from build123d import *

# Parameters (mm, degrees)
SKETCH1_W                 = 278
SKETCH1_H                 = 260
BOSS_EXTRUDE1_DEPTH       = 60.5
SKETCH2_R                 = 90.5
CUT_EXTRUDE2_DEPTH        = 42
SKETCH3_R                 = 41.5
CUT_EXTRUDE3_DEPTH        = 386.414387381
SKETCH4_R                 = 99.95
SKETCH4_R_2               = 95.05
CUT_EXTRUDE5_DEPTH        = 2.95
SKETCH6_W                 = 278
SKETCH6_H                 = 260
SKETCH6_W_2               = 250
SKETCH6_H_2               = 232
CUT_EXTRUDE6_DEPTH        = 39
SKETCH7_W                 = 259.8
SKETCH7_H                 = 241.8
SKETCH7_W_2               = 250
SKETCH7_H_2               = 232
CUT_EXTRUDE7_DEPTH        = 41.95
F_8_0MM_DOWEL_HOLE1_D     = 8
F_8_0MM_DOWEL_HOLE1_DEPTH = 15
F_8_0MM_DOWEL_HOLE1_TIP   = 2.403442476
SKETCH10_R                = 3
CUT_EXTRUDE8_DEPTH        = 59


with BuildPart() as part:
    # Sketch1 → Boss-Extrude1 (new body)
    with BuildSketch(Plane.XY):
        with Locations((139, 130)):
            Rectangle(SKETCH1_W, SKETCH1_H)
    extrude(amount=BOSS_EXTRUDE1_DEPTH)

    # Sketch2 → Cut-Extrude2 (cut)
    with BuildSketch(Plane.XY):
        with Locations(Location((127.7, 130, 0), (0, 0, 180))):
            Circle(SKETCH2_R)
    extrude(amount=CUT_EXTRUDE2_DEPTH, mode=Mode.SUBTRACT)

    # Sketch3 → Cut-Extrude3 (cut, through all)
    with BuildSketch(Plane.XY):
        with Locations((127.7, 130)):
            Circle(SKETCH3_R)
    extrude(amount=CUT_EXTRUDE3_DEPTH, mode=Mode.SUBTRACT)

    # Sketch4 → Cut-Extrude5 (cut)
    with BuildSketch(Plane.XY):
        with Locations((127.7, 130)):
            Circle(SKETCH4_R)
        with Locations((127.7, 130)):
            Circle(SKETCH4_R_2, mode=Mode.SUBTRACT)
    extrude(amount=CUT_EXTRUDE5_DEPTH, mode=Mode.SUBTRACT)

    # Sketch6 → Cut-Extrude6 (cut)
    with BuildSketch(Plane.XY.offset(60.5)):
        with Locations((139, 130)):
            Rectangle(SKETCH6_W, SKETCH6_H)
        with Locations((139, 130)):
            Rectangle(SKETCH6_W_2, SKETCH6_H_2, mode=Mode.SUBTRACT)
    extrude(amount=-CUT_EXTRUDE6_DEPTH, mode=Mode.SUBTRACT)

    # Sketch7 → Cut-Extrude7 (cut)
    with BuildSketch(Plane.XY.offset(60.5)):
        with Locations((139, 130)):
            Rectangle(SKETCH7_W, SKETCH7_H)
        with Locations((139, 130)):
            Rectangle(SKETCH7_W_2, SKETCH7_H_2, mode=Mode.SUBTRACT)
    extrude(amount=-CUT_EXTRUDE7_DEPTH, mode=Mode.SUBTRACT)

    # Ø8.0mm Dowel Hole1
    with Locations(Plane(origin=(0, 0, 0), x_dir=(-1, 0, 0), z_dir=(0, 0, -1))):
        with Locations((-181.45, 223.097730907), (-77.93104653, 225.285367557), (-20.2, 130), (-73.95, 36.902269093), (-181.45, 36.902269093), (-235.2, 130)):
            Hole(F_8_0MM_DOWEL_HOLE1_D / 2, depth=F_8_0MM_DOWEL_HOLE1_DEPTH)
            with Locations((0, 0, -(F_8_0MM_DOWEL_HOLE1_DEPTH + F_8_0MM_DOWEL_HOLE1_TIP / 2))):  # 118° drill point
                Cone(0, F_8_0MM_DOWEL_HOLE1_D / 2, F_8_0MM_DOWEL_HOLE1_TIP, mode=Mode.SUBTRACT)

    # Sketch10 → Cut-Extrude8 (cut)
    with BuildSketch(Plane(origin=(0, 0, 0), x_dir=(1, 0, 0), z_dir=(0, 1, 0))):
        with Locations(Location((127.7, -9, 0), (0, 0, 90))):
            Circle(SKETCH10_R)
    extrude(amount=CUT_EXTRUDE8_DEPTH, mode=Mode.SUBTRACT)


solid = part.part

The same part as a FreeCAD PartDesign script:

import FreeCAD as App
import Part
import Sketcher
Q = App.Units.Quantity

doc = App.newDocument("Part")
params = doc.addObject("Spreadsheet::Sheet", "Params")
for row, (alias, value) in enumerate([
    ("sketch1_width", "278 mm"),
    ("sketch1_height", "260 mm"),
    ("pad1_length", "60.5 mm"),
    ("sketch2_diameter", "181 mm"),
    ("pocket1_length", "42 mm"),
    ("sketch3_diameter", "83 mm"),
    ("sketch4_diameter", "199.9 mm"),
    ("sketch4_diameter2", "190.1 mm"),
    ("pocket3_length", "2.95 mm"),
    ("sketch5_width", "278 mm"),
    ("sketch5_width2", "250 mm"),
    ("sketch5_height", "260 mm"),
    ("sketch5_height2", "232 mm"),
    ("pocket4_length", "39 mm"),
    ("sketch6_width", "250 mm"),
    ("sketch6_height", "232 mm"),
    ("sketch6_width2", "259.8 mm"),
    ("sketch6_height2", "241.8 mm"),
    ("pocket5_length", "41.95 mm"),
    ("sketch7_diameter", "8 mm"),
    ("hole_diameter", "8 mm"),
    ("hole_depth", "15 mm"),
    ("sketch8_diameter", "6 mm"),
    ("pocket6_length", "59 mm"),
], start=1):
    params.set(f"A{row}", alias)
    params.set(f"B{row}", "=" + value)
    params.setAlias(f"B{row}", alias)

body = doc.addObject("PartDesign::Body", "Body")

# Sketch on XY plane
sketch1 = body.newObject("Sketcher::SketchObject", "Sketch")
sketch1.AttachmentSupport = (doc.getObject("XY_Plane"), [""])
sketch1.MapMode = "FlatFace"
sketch1.addGeometry([
    Part.LineSegment(App.Vector(0, 260, 0), App.Vector(0, 0, 0)),
    Part.LineSegment(App.Vector(0, 0, 0), App.Vector(278, 0, 0)),
    Part.LineSegment(App.Vector(278, 0, 0), App.Vector(278, 260, 0)),
    Part.LineSegment(App.Vector(278, 260, 0), App.Vector(0, 260, 0)),
], False)
sketch1.addConstraint([
    Sketcher.Constraint("Coincident", 0, 2, 1, 1),
    Sketcher.Constraint("Coincident", 1, 2, 2, 1),
    Sketcher.Constraint("Coincident", 2, 2, 3, 1),
    Sketcher.Constraint("Coincident", 3, 2, 0, 1),
    Sketcher.Constraint("Vertical", 0),
    Sketcher.Constraint("Horizontal", 1),
    Sketcher.Constraint("Vertical", 2),
    Sketcher.Constraint("Horizontal", 3),
    Sketcher.Constraint("Coincident", 0, 2, -1, 1),
    Sketcher.Constraint("DistanceX", 1, 1, 1, 2, Q("278 mm")),
    Sketcher.Constraint("DistanceY", 0, 2, 0, 1, Q("260 mm")),
])
sketch1.setExpression("Constraints[9]", "Params.sketch1_width")
sketch1.setExpression("Constraints[10]", "Params.sketch1_height")
pad1 = body.newObject("PartDesign::Pad", "Pad")
pad1.Profile = sketch1
pad1.setExpression("Length", "Params.pad1_length")

# Sketch on XY plane
sketch2 = body.newObject("Sketcher::SketchObject", "Sketch001")
sketch2.AttachmentSupport = (doc.getObject("XY_Plane"), [""])
sketch2.MapMode = "FlatFace"
sketch2.addGeometry(Part.Circle(App.Vector(128, 130, 0), App.Vector(0, 0, 1), 90), False)
sketch2.addConstraint([
    Sketcher.Constraint("Diameter", 0, Q("181 mm")),
    Sketcher.Constraint("DistanceY", -1, 1, 0, 3, Q("130 mm")),
    Sketcher.Constraint("DistanceX", -1, 1, 0, 3, Q("127.7 mm")),
])
sketch2.setExpression("Constraints[0]", "Params.sketch2_diameter")
pocket1 = body.newObject("PartDesign::Pocket", "Pocket")
pocket1.Profile = sketch2
pocket1.setExpression("Length", "Params.pocket1_length")
pocket1.Reversed = True

# Sketch on XY plane
sketch3 = body.newObject("Sketcher::SketchObject", "Sketch002")
sketch3.AttachmentSupport = (doc.getObject("XY_Plane"), [""])
sketch3.MapMode = "FlatFace"
sketch3.addGeometry(Part.Circle(App.Vector(128, 130, 0), App.Vector(0, 0, 1), 42), False)
sketch3.addConstraint([
    Sketcher.Constraint("Diameter", 0, Q("83 mm")),
    Sketcher.Constraint("DistanceY", -1, 1, 0, 3, Q("130 mm")),
    Sketcher.Constraint("DistanceX", -1, 1, 0, 3, Q("127.7 mm")),
])
sketch3.setExpression("Constraints[0]", "Params.sketch3_diameter")
pocket2 = body.newObject("PartDesign::Pocket", "Pocket001")
pocket2.Profile = sketch3
pocket2.Type = "ThroughAll"
pocket2.Reversed = True

# Sketch on XY plane
sketch4 = body.newObject("Sketcher::SketchObject", "Sketch003")
sketch4.AttachmentSupport = (doc.getObject("XY_Plane"), [""])
sketch4.MapMode = "FlatFace"
sketch4.addGeometry([
    Part.Circle(App.Vector(128, 130, 0), App.Vector(0, 0, 1), 100),
    Part.Circle(App.Vector(128, 130, 0), App.Vector(0, 0, 1), 95),
], False)
sketch4.addConstraint([
    Sketcher.Constraint("Coincident", 1, 3, 0, 3),
    Sketcher.Constraint("Diameter", 0, Q("199.9 mm")),
    Sketcher.Constraint("Diameter", 1, Q("190.1 mm")),
    Sketcher.Constraint("DistanceY", -1, 1, 0, 3, Q("130 mm")),
    Sketcher.Constraint("DistanceX", -1, 1, 0, 3, Q("127.7 mm")),
])
sketch4.setExpression("Constraints[1]", "Params.sketch4_diameter")
sketch4.setExpression("Constraints[2]", "Params.sketch4_diameter2")
pocket3 = body.newObject("PartDesign::Pocket", "Pocket002")
pocket3.Profile = sketch4
pocket3.setExpression("Length", "Params.pocket3_length")
pocket3.Reversed = True

# Sketch on XY plane
sketch5 = body.newObject("Sketcher::SketchObject", "Sketch004")
sketch5.AttachmentSupport = (doc.getObject("XY_Plane"), [""])
sketch5.MapMode = "FlatFace"
sketch5.AttachmentOffset = App.Placement(App.Vector(0, 0, 60.5), App.Rotation())
sketch5.addGeometry([
    Part.LineSegment(App.Vector(0, 260, 0), App.Vector(0, 0, 0)),  # 0
    Part.LineSegment(App.Vector(0, 0, 0), App.Vector(278, 0, 0)),  # 1
    Part.LineSegment(App.Vector(278, 0, 0), App.Vector(278, 260, 0)),  # 2
    Part.LineSegment(App.Vector(278, 260, 0), App.Vector(0, 260, 0)),  # 3
    Part.LineSegment(App.Vector(264, 14, 0), App.Vector(14, 14, 0)),  # 4
    Part.LineSegment(App.Vector(14, 14, 0), App.Vector(14, 246, 0)),  # 5
    Part.LineSegment(App.Vector(14, 246, 0), App.Vector(264, 246, 0)),  # 6
    Part.LineSegment(App.Vector(264, 246, 0), App.Vector(264, 14, 0)),  # 7
], False)
sketch5.addConstraint([
    Sketcher.Constraint("Coincident", 0, 2, 1, 1),
    Sketcher.Constraint("Coincident", 1, 2, 2, 1),
    Sketcher.Constraint("Coincident", 2, 2, 3, 1),
    Sketcher.Constraint("Coincident", 3, 2, 0, 1),
    Sketcher.Constraint("Coincident", 4, 2, 5, 1),
    Sketcher.Constraint("Coincident", 5, 2, 6, 1),
    Sketcher.Constraint("Coincident", 6, 2, 7, 1),
    Sketcher.Constraint("Coincident", 7, 2, 4, 1),
    Sketcher.Constraint("Vertical", 0),
    Sketcher.Constraint("Horizontal", 1),
    Sketcher.Constraint("Vertical", 2),
    Sketcher.Constraint("Horizontal", 3),
    Sketcher.Constraint("Horizontal", 4),
    Sketcher.Constraint("Vertical", 5),
    Sketcher.Constraint("Horizontal", 6),
    Sketcher.Constraint("Vertical", 7),
    Sketcher.Constraint("Coincident", 0, 2, -1, 1),
    Sketcher.Constraint("DistanceX", 1, 1, 1, 2, Q("278 mm")),
    Sketcher.Constraint("DistanceX", 4, 2, 4, 1, Q("250 mm")),
    Sketcher.Constraint("DistanceY", 0, 2, 0, 1, Q("260 mm")),
    Sketcher.Constraint("DistanceY", 5, 1, 5, 2, Q("232 mm")),
    Sketcher.Constraint("DistanceX", -1, 1, 4, 2, Q("14 mm")),
    Sketcher.Constraint("DistanceY", -1, 1, 4, 2, Q("14 mm")),
])
sketch5.setExpression("Constraints[17]", "Params.sketch5_width")
sketch5.setExpression("Constraints[18]", "Params.sketch5_width2")
sketch5.setExpression("Constraints[19]", "Params.sketch5_height")
sketch5.setExpression("Constraints[20]", "Params.sketch5_height2")
pocket4 = body.newObject("PartDesign::Pocket", "Pocket003")
pocket4.Profile = sketch5
pocket4.setExpression("Length", "Params.pocket4_length")

# Sketch on XY plane
sketch6 = body.newObject("Sketcher::SketchObject", "Sketch005")
sketch6.AttachmentSupport = (doc.getObject("XY_Plane"), [""])
sketch6.MapMode = "FlatFace"
sketch6.AttachmentOffset = App.Placement(App.Vector(0, 0, 60.5), App.Rotation())
sketch6.addGeometry([
    Part.LineSegment(App.Vector(9, 251, 0), App.Vector(9, 9, 0)),  # 0
    Part.LineSegment(App.Vector(9, 9, 0), App.Vector(269, 9, 0)),  # 1
    Part.LineSegment(App.Vector(269, 9, 0), App.Vector(269, 251, 0)),  # 2
    Part.LineSegment(App.Vector(269, 251, 0), App.Vector(9, 251, 0)),  # 3
    Part.LineSegment(App.Vector(264, 14, 0), App.Vector(14, 14, 0)),  # 4
    Part.LineSegment(App.Vector(14, 14, 0), App.Vector(14, 246, 0)),  # 5
    Part.LineSegment(App.Vector(14, 246, 0), App.Vector(264, 246, 0)),  # 6
    Part.LineSegment(App.Vector(264, 246, 0), App.Vector(264, 14, 0)),  # 7
], False)
sketch6.addConstraint([
    Sketcher.Constraint("Coincident", 0, 2, 1, 1),
    Sketcher.Constraint("Coincident", 1, 2, 2, 1),
    Sketcher.Constraint("Coincident", 2, 2, 3, 1),
    Sketcher.Constraint("Coincident", 3, 2, 0, 1),
    Sketcher.Constraint("Coincident", 4, 2, 5, 1),
    Sketcher.Constraint("Coincident", 5, 2, 6, 1),
    Sketcher.Constraint("Coincident", 6, 2, 7, 1),
    Sketcher.Constraint("Coincident", 7, 2, 4, 1),
    Sketcher.Constraint("Vertical", 0),
    Sketcher.Constraint("Horizontal", 1),
    Sketcher.Constraint("Vertical", 2),
    Sketcher.Constraint("Horizontal", 3),
    Sketcher.Constraint("Horizontal", 4),
    Sketcher.Constraint("Vertical", 5),
    Sketcher.Constraint("Horizontal", 6),
    Sketcher.Constraint("Vertical", 7),
    Sketcher.Constraint("DistanceX", 4, 2, 4, 1, Q("250 mm")),
    Sketcher.Constraint("DistanceY", 5, 1, 5, 2, Q("232 mm")),
    Sketcher.Constraint("DistanceX", 1, 1, 1, 2, Q("259.8 mm")),
    Sketcher.Constraint("DistanceY", 0, 2, 0, 1, Q("241.8 mm")),
    Sketcher.Constraint("DistanceX", -1, 1, 4, 2, Q("14 mm")),
    Sketcher.Constraint("DistanceY", -1, 1, 4, 2, Q("14 mm")),
    Sketcher.Constraint("DistanceX", -1, 1, 0, 2, Q("9.1 mm")),
    Sketcher.Constraint("DistanceY", -1, 1, 0, 2, Q("9.1 mm")),
])
sketch6.setExpression("Constraints[16]", "Params.sketch6_width")
sketch6.setExpression("Constraints[17]", "Params.sketch6_height")
sketch6.setExpression("Constraints[18]", "Params.sketch6_width2")
sketch6.setExpression("Constraints[19]", "Params.sketch6_height2")
pocket5 = body.newObject("PartDesign::Pocket", "Pocket004")
pocket5.Profile = sketch6
pocket5.setExpression("Length", "Params.pocket5_length")

# Sketch on XY plane
sketch7 = body.newObject("Sketcher::SketchObject", "Sketch006")
sketch7.AttachmentSupport = (doc.getObject("XY_Plane"), [""])
sketch7.MapMode = "FlatFace"
sketch7.addGeometry([
    Part.Circle(App.Vector(181.4, 223.1, 0), App.Vector(0, 0, 1), 4),  # 0
    Part.Circle(App.Vector(77.9, 225.3, 0), App.Vector(0, 0, 1), 4),  # 1
    Part.Circle(App.Vector(20.2, 130, 0), App.Vector(0, 0, 1), 4),  # 2
    Part.Circle(App.Vector(74, 36.9, 0), App.Vector(0, 0, 1), 4),  # 3
    Part.Circle(App.Vector(181.4, 36.9, 0), App.Vector(0, 0, 1), 4),  # 4
    Part.Circle(App.Vector(235.2, 130, 0), App.Vector(0, 0, 1), 4),  # 5
], False)
sketch7.addConstraint([
    Sketcher.Constraint("Equal", 0, 1),
    Sketcher.Constraint("Equal", 1, 2),
    Sketcher.Constraint("Equal", 2, 3),
    Sketcher.Constraint("Equal", 3, 4),
    Sketcher.Constraint("Equal", 4, 5),
    Sketcher.Constraint("Horizontal", 3, 3, 4, 3),
    Sketcher.Constraint("Horizontal", 2, 3, 5, 3),
    Sketcher.Constraint("Vertical", 0, 3, 4, 3),
    Sketcher.Constraint("Diameter", 0, Q("8 mm")),
    Sketcher.Constraint("DistanceY", -1, 1, 2, 3, Q("130 mm")),
    Sketcher.Constraint("DistanceX", 2, 3, 5, 3, Q("215 mm")),
    Sketcher.Constraint("DistanceX", -1, 1, 2, 3, Q("20.2 mm")),
    Sketcher.Constraint("DistanceX", 3, 3, 0, 3, Q("107.5 mm")),
    Sketcher.Constraint("DistanceX", -1, 1, 0, 3, Q("181.45 mm")),
    Sketcher.Constraint("DistanceY", 3, 3, 1, 3, Q("188.383098 mm")),
    Sketcher.Constraint("DistanceY", -1, 1, 0, 3, Q("223.097731 mm")),
    Sketcher.Constraint("DistanceY", -1, 1, 3, 3, Q("36.902269 mm")),
    Sketcher.Constraint("DistanceX", -1, 1, 1, 3, Q("77.931047 mm")),
])
sketch7.setExpression("Constraints[8]", "Params.sketch7_diameter")
doc.recompute()
hole = body.newObject("PartDesign::Hole", "Hole")
hole.Profile = sketch7
hole.ThreadType = "None"
hole.setExpression("Diameter", "Params.hole_diameter")
hole.DepthType = "Dimension"
hole.setExpression("Depth", "Params.hole_depth")
hole.DrillPoint = "Angled"
hole.DrillPointAngle = 118
hole.Reversed = True

# Sketch on XZ plane
sketch8 = body.newObject("Sketcher::SketchObject", "Sketch007")
sketch8.AttachmentSupport = (doc.getObject("XZ_Plane"), [""])
sketch8.MapMode = "FlatFace"
sketch8.addGeometry(Part.Circle(App.Vector(127.7, 9, 0), App.Vector(0, 0, 1), 3), False)
sketch8.addConstraint([
    Sketcher.Constraint("Diameter", 0, Q("6 mm")),
    Sketcher.Constraint("DistanceY", -1, 1, 0, 3, Q("9 mm")),
    Sketcher.Constraint("DistanceX", -1, 1, 0, 3, Q("127.7 mm")),
])
sketch8.setExpression("Constraints[0]", "Params.sketch8_diameter")
pocket6 = body.newObject("PartDesign::Pocket", "Pocket005")
pocket6.Profile = sketch8
pocket6.setExpression("Length", "Params.pocket6_length")

doc.recompute()
